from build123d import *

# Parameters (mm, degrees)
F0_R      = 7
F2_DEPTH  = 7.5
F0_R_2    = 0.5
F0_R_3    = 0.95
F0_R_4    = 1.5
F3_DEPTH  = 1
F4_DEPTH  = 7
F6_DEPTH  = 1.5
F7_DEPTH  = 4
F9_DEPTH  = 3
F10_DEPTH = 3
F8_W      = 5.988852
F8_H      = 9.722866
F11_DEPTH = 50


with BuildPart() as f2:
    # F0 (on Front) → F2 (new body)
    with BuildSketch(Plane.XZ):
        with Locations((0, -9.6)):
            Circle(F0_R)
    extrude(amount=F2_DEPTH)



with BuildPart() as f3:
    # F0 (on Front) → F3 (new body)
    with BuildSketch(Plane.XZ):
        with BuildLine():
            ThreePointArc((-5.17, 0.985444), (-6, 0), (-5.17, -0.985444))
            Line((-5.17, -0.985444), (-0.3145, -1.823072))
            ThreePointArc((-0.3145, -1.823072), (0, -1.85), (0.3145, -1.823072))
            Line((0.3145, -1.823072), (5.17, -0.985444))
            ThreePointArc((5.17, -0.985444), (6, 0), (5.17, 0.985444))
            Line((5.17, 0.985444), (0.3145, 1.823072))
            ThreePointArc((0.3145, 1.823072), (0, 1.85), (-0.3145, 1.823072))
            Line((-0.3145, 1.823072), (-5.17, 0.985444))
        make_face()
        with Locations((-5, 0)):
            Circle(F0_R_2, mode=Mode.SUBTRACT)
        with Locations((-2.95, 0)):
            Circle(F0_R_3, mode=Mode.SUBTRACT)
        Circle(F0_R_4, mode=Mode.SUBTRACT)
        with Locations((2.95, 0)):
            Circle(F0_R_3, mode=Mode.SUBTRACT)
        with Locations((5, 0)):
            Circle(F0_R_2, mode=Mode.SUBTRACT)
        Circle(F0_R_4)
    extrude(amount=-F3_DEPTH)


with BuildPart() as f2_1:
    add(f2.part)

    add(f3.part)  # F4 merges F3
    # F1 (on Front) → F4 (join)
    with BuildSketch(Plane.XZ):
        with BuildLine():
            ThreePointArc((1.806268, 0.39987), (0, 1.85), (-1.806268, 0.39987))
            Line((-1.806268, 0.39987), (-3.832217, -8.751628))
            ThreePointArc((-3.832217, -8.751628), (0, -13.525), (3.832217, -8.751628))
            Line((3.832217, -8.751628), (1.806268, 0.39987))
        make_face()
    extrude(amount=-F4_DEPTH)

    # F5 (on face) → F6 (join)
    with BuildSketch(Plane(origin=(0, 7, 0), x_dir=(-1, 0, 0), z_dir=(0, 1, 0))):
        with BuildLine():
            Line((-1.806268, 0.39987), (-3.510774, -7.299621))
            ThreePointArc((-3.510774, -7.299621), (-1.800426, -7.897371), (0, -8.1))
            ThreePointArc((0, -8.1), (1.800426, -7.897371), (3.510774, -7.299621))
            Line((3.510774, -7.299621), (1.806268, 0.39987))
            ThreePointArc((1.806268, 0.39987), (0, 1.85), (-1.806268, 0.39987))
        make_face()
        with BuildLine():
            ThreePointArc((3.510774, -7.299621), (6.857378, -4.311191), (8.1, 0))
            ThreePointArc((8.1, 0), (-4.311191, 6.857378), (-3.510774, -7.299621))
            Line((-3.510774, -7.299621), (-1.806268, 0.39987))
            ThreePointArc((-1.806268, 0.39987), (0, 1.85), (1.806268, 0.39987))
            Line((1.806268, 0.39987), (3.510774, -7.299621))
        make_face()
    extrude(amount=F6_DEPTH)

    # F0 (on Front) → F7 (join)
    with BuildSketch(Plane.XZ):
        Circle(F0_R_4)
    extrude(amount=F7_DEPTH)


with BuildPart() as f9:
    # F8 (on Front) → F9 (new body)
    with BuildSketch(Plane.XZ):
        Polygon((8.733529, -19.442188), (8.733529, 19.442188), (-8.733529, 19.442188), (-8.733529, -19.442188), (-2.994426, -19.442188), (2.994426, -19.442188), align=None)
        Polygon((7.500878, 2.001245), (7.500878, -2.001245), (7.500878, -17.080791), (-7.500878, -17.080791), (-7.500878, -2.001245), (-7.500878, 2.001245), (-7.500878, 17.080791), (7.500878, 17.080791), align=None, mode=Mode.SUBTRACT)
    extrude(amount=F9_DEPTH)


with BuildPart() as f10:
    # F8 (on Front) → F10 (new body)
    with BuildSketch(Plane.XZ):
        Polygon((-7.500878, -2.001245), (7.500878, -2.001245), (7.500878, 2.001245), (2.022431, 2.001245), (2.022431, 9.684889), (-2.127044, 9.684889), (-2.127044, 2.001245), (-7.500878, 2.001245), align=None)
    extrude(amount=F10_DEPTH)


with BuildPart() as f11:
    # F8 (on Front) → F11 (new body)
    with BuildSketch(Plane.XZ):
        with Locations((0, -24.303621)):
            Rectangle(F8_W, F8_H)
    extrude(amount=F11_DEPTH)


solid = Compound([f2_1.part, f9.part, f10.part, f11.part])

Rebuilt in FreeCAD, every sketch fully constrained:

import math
import FreeCAD as App
import Part
import Sketcher

V = App.Vector
Q = App.Units.Quantity

doc = App.newDocument("Part")
body = doc.addObject("PartDesign::Body", "Body")

# Sketch on XZ plane
sketch1 = doc.addObject("Sketcher::SketchObject", "Sketch")
body.addObject(sketch1)
sketch1.AttachmentSupport = (doc.XZ_Plane, [""])
sketch1.MapMode = "FlatFace"
sketch1.addGeometry(Part.Circle(V(0, -10, 0), V(0, 0, 1), 7), False)
sketch1.addConstraint([
    Sketcher.Constraint("PointOnObject", 0, 3, -2),
    Sketcher.Constraint("Diameter", 0, Q("14 mm")),
    Sketcher.Constraint("DistanceY", 0, 3, -1, 1, Q("9.6 mm")),
])
pad1 = doc.addObject("PartDesign::Pad", "Pad")
body.addObject(pad1)
pad1.Profile = sketch1
pad1.Length = 7.5
body2 = doc.addObject("PartDesign::Body", "Body001")

# Sketch on XZ plane
sketch2 = doc.addObject("Sketcher::SketchObject", "Sketch001")
body2.addObject(sketch2)
sketch2.AttachmentSupport = (doc.getObject("XZ_Plane001"), [""])
sketch2.MapMode = "FlatFace"
sketch2.addGeometry([
    Part.ArcOfCircle(Part.Circle(V(-5, 0, 0), V(0, 0, 1), 1), math.radians(99.787815), math.radians(260.212185)),  # 0
    Part.LineSegment(V(-5.17, -0.985444, 0), V(-0.3145, -1.823072, 0)),  # 1
    Part.ArcOfCircle(Part.Circle(V(0, 0.000033, 0), V(0, 0, 1), 1.850033), math.radians(-99.787644), math.radians(-80.212356)),  # 2
    Part.LineSegment(V(0.3145, -1.823072, 0), V(5.17, -0.985444, 0)),  # 3
    Part.ArcOfCircle(Part.Circle(V(5, 0, 0), V(0, 0, 1), 1), math.radians(-80.212185), math.radians(80.212185)),  # 4
    Part.LineSegment(V(5.17, 0.985444, 0), V(0.3145, 1.823072, 0)),  # 5
    Part.ArcOfCircle(Part.Circle(V(0, -0.000033, 0), V(0, 0, 1), 1.850033), math.radians(80.212356), math.radians(99.787644)),  # 6
    Part.LineSegment(V(-0.3145, 1.823072, 0), V(-5.17, 0.985444, 0)),  # 7
    Part.Circle(V(-5, 0, 0), V(0, 0, 1), 0.5),  # 8
    Part.Circle(V(-2.95, 0, 0), V(0, 0, 1), 0.95),  # 9
    Part.Circle(V(2.95, 0, 0), V(0, 0, 1), 0.95),  # 10
    Part.Circle(V(5, 0, 0), V(0, 0, 1), 0.5),  # 11
], False)
sketch2.addConstraint([
    Sketcher.Constraint("Tangent", 0, 2, 1, 1),
    Sketcher.Constraint("Coincident", 1, 2, 2, 1),
    Sketcher.Constraint("Coincident", 2, 2, 3, 1),
    Sketcher.Constraint("Tangent", 3, 2, 4, 1),
    Sketcher.Constraint("Tangent", 4, 2, 5, 1),
    Sketcher.Constraint("Coincident", 5, 2, 6, 1),
    Sketcher.Constraint("Coincident", 6, 2, 7, 1),
    Sketcher.Constraint("Tangent", 7, 2, 0, 1),
    Sketcher.Constraint("Coincident", 8, 3, 0, 3),
    Sketcher.Constraint("Coincident", 11, 3, 4, 3),
    Sketcher.Constraint("Equal", 0, 4),
    Sketcher.Constraint("Equal", 2, 6),
    Sketcher.Constraint("Equal", 9, 10),
    Sketcher.Constraint("Equal", 8, 11),
    Sketcher.Constraint("Symmetric", 0, 3, 4, 3, -1, 1),
    Sketcher.Constraint("Symmetric", 2, 3, 6, 3, -1, 1),
    Sketcher.Constraint("Symmetric", 9, 3, 10, 3, -1, 1),
    Sketcher.Constraint("Symmetric", 1, 2, 2, 2, -2),
    Sketcher.Constraint("PointOnObject", 0, 3, -1),
    Sketcher.Constraint("PointOnObject", 9, 3, -1),
    Sketcher.Constraint("Horizontal", 5, 2, 6, 2),
    Sketcher.Constraint("Vertical", 2, 2, 5, 2),
    Sketcher.Constraint("Diameter", 8, Q("1 mm")),
    Sketcher.Constraint("Radius", 0, Q("1 mm")),
    Sketcher.Constraint("Diameter", 9, Q("1.9 mm")),
    Sketcher.Constraint("DistanceX", 0, 3, -1, 1, Q("5 mm")),
    Sketcher.Constraint("DistanceX", 9, 3, 10, 3, Q("5.9 mm")),
    Sketcher.Constraint("DistanceX", 0, 2, -1, 1, Q("5.17 mm")),
    Sketcher.Constraint("Radius", 2, Q("1.850033 mm")),
    Sketcher.Constraint("DistanceX", 1, 2, 2, 2, Q("0.629 mm")),
])
pad2 = doc.addObject("PartDesign::Pad", "Pad001")
body2.addObject(pad2)
pad2.Profile = sketch2
pad2.Length = 1
pad2.Reversed = True
body.AllowCompound = True
doc.recompute()

boolean = doc.addObject("PartDesign::Boolean", "Boolean")
body.addObject(boolean)
boolean.Type = "Fuse"
boolean.addObjects([body2])

# Sketch on XZ plane
sketch3 = doc.addObject("Sketcher::SketchObject", "Sketch002")
body.addObject(sketch3)
sketch3.AttachmentSupport = (doc.XZ_Plane, [""])
sketch3.MapMode = "FlatFace"
sketch3.addGeometry([
    Part.ArcOfCircle(Part.Circle(V(0, 0, 0), V(0, 0, 1), 1.9), math.radians(12), math.radians(168)),
    Part.LineSegment(V(-1.8, 0.4, 0), V(-3.8, -8.8, 0)),
    Part.ArcOfCircle(Part.Circle(V(0, -9.6, 0), V(0, 0, 1), 3.9), math.radians(168), math.radians(372)),
    Part.LineSegment(V(3.8, -8.8, 0), V(1.8, 0.4, 0)),
], False)
sketch3.addConstraint([
    Sketcher.Constraint("Tangent", 0, 2, 1, 1),
    Sketcher.Constraint("Tangent", 1, 2, 2, 1),
    Sketcher.Constraint("Tangent", 2, 2, 3, 1),
    Sketcher.Constraint("Tangent", 3, 2, 0, 1),
    Sketcher.Constraint("Coincident", 0, 3, -1, 1),
    Sketcher.Constraint("PointOnObject", 2, 3, -2),
    Sketcher.Constraint("Radius", 0, Q("1.85 mm")),
    Sketcher.Constraint("Radius", 2, Q("3.925 mm")),
    Sketcher.Constraint("DistanceY", 2, 3, -1, 1, Q("9.6 mm")),
])
pad3 = doc.addObject("PartDesign::Pad", "Pad002")
body.addObject(pad3)
pad3.Profile = sketch3
pad3.Length = 7
pad3.Reversed = True

# Sketch on XZ plane
sketch4 = doc.addObject("Sketcher::SketchObject", "Sketch003")
body.addObject(sketch4)
sketch4.AttachmentSupport = (doc.XZ_Plane, [""])
sketch4.MapMode = "FlatFace"
sketch4.AttachmentOffset = App.Placement(V(0, 0, -7), App.Rotation())
sketch4.addGeometry([
    Part.ArcOfCircle(Part.Circle(V(0, 0, 0), V(0, 0, 1), 8.1), math.radians(-90), math.radians(-64)),
    Part.ArcOfCircle(Part.Circle(V(0, 0, 0), V(0, 0, 1), 8.1), math.radians(-116), math.radians(-90)),
    Part.ArcOfCircle(Part.Circle(V(0, 0, 0), V(0, 0, 1), 8.1), math.radians(180), math.radians(244)),
    Part.ArcOfCircle(Part.Circle(V(0, 0, 0), V(0, 0, 1), 8.1), math.radians(-64), math.radians(180)),
], False)
sketch4.addConstraint([
    Sketcher.Constraint("Tangent", 0, 1, 1, 2),
    Sketcher.Constraint("Tangent", 1, 1, 2, 2),
    Sketcher.Constraint("Tangent", 2, 1, 3, 2),
    Sketcher.Constraint("Tangent", 3, 1, 0, 2),
    Sketcher.Constraint("Coincident", 0, 3, -1, 1),
    Sketcher.Constraint("Equal", 0, 1),
    Sketcher.Constraint("PointOnObject", 0, 1, -2),
    Sketcher.Constraint("PointOnObject", 2, 1, -1),
    Sketcher.Constraint("Horizontal", 1, 1, 3, 1),
    Sketcher.Constraint("Radius", 2, Q("8.1 mm")),
    Sketcher.Constraint("DistanceY", 1, 1, -1, 1, Q("7.299621 mm")),
])
pad4 = doc.addObject("PartDesign::Pad", "Pad003")
body.addObject(pad4)
pad4.Profile = sketch4
pad4.Length = 1.5
pad4.Reversed = True

# Sketch on XZ plane
sketch5 = doc.addObject("Sketcher::SketchObject", "Sketch004")
body.addObject(sketch5)
sketch5.AttachmentSupport = (doc.XZ_Plane, [""])
sketch5.MapMode = "FlatFace"
sketch5.addGeometry(Part.Circle(V(0, 0, 0), V(0, 0, 1), 1.5), False)
sketch5.addConstraint([
    Sketcher.Constraint("Coincident", 0, 3, -1, 1),
    Sketcher.Constraint("Diameter", 0, Q("3 mm")),
])
pad5 = doc.addObject("PartDesign::Pad", "Pad004")
body.addObject(pad5)
pad5.Profile = sketch5
pad5.Length = 4
body3 = doc.addObject("PartDesign::Body", "Body002")

# Sketch on XZ plane
sketch6 = doc.addObject("Sketcher::SketchObject", "Sketch005")
body3.addObject(sketch6)
sketch6.AttachmentSupport = (doc.getObject("XZ_Plane002"), [""])
sketch6.MapMode = "FlatFace"
sketch6.addGeometry([
    Part.LineSegment(V(9, -19, 0), V(9, 19, 0)),  # 0
    Part.LineSegment(V(9, 19, 0), V(-9, 19, 0)),  # 1
    Part.LineSegment(V(-9, 19, 0), V(-9, -19, 0)),  # 2
    Part.LineSegment(V(-9, -19, 0), V(9, -19, 0)),  # 3
    Part.LineSegment(V(8, 17, 0), V(8, -17, 0)),  # 4
    Part.LineSegment(V(8, -17, 0), V(-8, -17, 0)),  # 5
    Part.LineSegment(V(-8, -17, 0), V(-8, 17, 0)),  # 6
    Part.LineSegment(V(-8, 17, 0), V(8, 17, 0)),  # 7
], False)
sketch6.addConstraint([
    Sketcher.Constraint("Coincident", 0, 2, 1, 1),
    Sketcher.Constraint("Coincident", 1, 2, 2, 1),
    Sketcher.Constraint("Coincident", 2, 2, 3, 1),
    Sketcher.Constraint("Coincident", 3, 2, 0, 1),
    Sketcher.Constraint("Coincident", 4, 2, 5, 1),
    Sketcher.Constraint("Coincident", 5, 2, 6, 1),
    Sketcher.Constraint("Coincident", 6, 2, 7, 1),
    Sketcher.Constraint("Coincident", 7, 2, 4, 1),
    Sketcher.Constraint("Vertical", 0),
    Sketcher.Constraint("Horizontal", 1),
    Sketcher.Constraint("Vertical", 2),
    Sketcher.Constraint("Horizontal", 3),
    Sketcher.Constraint("Vertical", 4),
    Sketcher.Constraint("Horizontal", 5),
    Sketcher.Constraint("Vertical", 6),
    Sketcher.Constraint("Horizontal", 7),
    Sketcher.Constraint("Symmetric", 0, 2, 2, 2, -1, 1),
    Sketcher.Constraint("Symmetric", 4, 2, 6, 2, -1, 1),
    Sketcher.Constraint("DistanceX", 1, 2, 1, 1, Q("17.467058 mm")),
    Sketcher.Constraint("DistanceX", 5, 2, 5, 1, Q("15.001756 mm")),
    Sketcher.Constraint("DistanceY", 0, 1, 0, 2, Q("38.884376 mm")),
    Sketcher.Constraint("DistanceY", 4, 2, 4, 1, Q("34.161582 mm")),
])
pad6 = doc.addObject("PartDesign::Pad", "Pad005")
body3.addObject(pad6)
pad6.Profile = sketch6
pad6.Length = 3
body4 = doc.addObject("PartDesign::Body", "Body003")

# Sketch on XZ plane
sketch7 = doc.addObject("Sketcher::SketchObject", "Sketch006")
body4.addObject(sketch7)
sketch7.AttachmentSupport = (doc.getObject("XZ_Plane003"), [""])
sketch7.MapMode = "FlatFace"
sketch7.addGeometry([
    Part.LineSegment(V(-7.5, -2, 0), V(7.5, -2, 0)),  # 0
    Part.LineSegment(V(7.5, -2, 0), V(7.5, 2, 0)),  # 1
    Part.LineSegment(V(7.5, 2, 0), V(2, 2, 0)),  # 2
    Part.LineSegment(V(2, 2, 0), V(2, 9.7, 0)),  # 3
    Part.LineSegment(V(2, 9.7, 0), V(-2.1, 9.7, 0)),  # 4
    Part.LineSegment(V(-2.1, 9.7, 0), V(-2.1, 2, 0)),  # 5
    Part.LineSegment(V(-2.1, 2, 0), V(-7.5, 2, 0)),  # 6
    Part.LineSegment(V(-7.5, 2, 0), V(-7.5, -2, 0)),  # 7
], False)
sketch7.addConstraint([
    Sketcher.Constraint("Coincident", 0, 2, 1, 1),
    Sketcher.Constraint("Coincident", 1, 2, 2, 1),
    Sketcher.Constraint("Coincident", 2, 2, 3, 1),
    Sketcher.Constraint("Coincident", 3, 2, 4, 1),
    Sketcher.Constraint("Coincident", 4, 2, 5, 1),
    Sketcher.Constraint("Coincident", 5, 2, 6, 1),
    Sketcher.Constraint("Coincident", 6, 2, 7, 1),
    Sketcher.Constraint("Coincident", 7, 2, 0, 1),
    Sketcher.Constraint("Horizontal", 0),
    Sketcher.Constraint("Vertical", 1),
    Sketcher.Constraint("Horizontal", 2),
    Sketcher.Constraint("Vertical", 3),
    Sketcher.Constraint("Horizontal", 4),
    Sketcher.Constraint("Vertical", 5),
    Sketcher.Constraint("Horizontal", 6),
    Sketcher.Constraint("Vertical", 7),
    Sketcher.Constraint("Symmetric", 0, 2, 6, 2, -1, 1),
    Sketcher.Constraint("Horizontal", 2, 2, 5, 2),
    Sketcher.Constraint("DistanceY", 1, 1, 1, 2, Q("4.00249 mm")),
    Sketcher.Constraint("DistanceX", 0, 1, 0, 2, Q("15.001756 mm")),
    Sketcher.Constraint("DistanceX", 2, 2, 2, 1, Q("5.478447 mm")),
    Sketcher.Constraint("DistanceX", 4, 2, 4, 1, Q("4.149475 mm")),
    Sketcher.Constraint("DistanceY", 3, 1, 3, 2, Q("7.683644 mm")),
])
pad7 = doc.addObject("PartDesign::Pad", "Pad006")
body4.addObject(pad7)
pad7.Profile = sketch7
pad7.Length = 3
body5 = doc.addObject("PartDesign::Body", "Body004")

# Sketch on XZ plane
sketch8 = doc.addObject("Sketcher::SketchObject", "Sketch007")
body5.addObject(sketch8)
sketch8.AttachmentSupport = (doc.getObject("XZ_Plane004"), [""])
sketch8.MapMode = "FlatFace"
sketch8.addGeometry([
    Part.LineSegment(V(-3, -19, 0), V(-3, -29, 0)),
    Part.LineSegment(V(-3, -29, 0), V(3, -29, 0)),
    Part.LineSegment(V(3, -29, 0), V(3, -19, 0)),
    Part.LineSegment(V(3, -19, 0), V(-3, -19, 0)),
], False)
sketch8.addConstraint([
    Sketcher.Constraint("Coincident", 0, 2, 1, 1),
    Sketcher.Constraint("Coincident", 1, 2, 2, 1),
    Sketcher.Constraint("Coincident", 2, 2, 3, 1),
    Sketcher.Constraint("Coincident", 3, 2, 0, 1),
    Sketcher.Constraint("Vertical", 0),
    Sketcher.Constraint("Horizontal", 1),
    Sketcher.Constraint("Vertical", 2),
    Sketcher.Constraint("Horizontal", 3),
    Sketcher.Constraint("DistanceX", 1, 1, 1, 2, Q("5.988852 mm")),
    Sketcher.Constraint("DistanceY", 0, 2, 0, 1, Q("9.722866 mm")),
    Sketcher.Constraint("DistanceY", 2, 2, -1, 1, Q("19.442188 mm")),
    Sketcher.Constraint("DistanceX", 0, 2, -1, 1, Q("2.994426 mm")),
])
pad8 = doc.addObject("PartDesign::Pad", "Pad007")
body5.addObject(pad8)
pad8.Profile = sketch8
pad8.Length = 50

doc.recompute()
